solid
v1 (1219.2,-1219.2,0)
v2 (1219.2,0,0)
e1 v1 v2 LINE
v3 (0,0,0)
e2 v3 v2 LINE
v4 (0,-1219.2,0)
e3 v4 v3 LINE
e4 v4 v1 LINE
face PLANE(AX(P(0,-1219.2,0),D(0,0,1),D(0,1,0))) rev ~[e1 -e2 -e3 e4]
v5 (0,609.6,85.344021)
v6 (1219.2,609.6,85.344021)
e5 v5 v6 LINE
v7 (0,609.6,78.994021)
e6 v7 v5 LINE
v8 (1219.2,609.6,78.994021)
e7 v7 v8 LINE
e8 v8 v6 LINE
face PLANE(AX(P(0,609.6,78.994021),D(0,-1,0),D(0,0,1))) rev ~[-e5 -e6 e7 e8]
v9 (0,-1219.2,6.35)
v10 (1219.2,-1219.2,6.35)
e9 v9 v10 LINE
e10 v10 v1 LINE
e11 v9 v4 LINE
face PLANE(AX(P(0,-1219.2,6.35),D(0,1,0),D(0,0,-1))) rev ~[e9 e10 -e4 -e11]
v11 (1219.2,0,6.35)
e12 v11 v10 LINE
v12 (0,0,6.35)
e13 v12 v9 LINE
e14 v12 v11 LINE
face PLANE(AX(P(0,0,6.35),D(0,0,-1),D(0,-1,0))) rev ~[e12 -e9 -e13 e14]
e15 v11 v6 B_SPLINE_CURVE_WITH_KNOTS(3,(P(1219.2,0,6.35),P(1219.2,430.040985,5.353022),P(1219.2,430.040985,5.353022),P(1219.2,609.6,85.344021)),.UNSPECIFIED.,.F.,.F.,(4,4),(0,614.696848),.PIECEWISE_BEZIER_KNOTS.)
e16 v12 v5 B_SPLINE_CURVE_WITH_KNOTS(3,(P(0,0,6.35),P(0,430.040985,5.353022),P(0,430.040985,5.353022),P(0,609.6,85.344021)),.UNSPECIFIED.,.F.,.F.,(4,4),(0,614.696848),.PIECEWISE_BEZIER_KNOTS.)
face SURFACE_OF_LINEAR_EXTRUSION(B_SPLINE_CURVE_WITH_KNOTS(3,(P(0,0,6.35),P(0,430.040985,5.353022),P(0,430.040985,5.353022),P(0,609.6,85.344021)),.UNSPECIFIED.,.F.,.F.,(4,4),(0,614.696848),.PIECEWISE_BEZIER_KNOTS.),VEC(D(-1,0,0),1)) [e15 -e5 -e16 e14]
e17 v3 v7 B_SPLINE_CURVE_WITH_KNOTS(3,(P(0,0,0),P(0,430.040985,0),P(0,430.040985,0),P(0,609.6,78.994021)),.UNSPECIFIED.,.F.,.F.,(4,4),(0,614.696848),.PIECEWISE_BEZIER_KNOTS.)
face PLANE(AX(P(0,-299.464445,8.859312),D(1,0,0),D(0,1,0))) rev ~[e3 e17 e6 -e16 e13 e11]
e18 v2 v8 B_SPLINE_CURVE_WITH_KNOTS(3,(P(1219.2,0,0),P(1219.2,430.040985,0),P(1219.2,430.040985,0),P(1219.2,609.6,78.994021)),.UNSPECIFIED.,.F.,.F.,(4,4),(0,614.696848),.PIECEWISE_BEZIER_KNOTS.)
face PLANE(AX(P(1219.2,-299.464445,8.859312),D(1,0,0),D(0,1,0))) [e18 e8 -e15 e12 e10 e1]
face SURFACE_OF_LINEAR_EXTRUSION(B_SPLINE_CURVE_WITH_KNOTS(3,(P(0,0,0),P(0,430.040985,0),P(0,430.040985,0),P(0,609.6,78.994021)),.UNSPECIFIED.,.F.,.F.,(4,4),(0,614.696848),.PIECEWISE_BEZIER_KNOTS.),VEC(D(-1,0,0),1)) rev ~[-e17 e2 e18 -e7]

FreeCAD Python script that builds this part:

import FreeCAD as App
import Part
import Sketcher
from FreeCAD import Vector
Q = App.Units.Quantity

doc = App.newDocument("Part")
params = doc.addObject("Spreadsheet::Sheet", "Params")
for row, (alias, value) in enumerate([
    ("sketch1_width", "48 in"),
    ("pad1_length", "48 in"),
], start=1):
    params.set(f"A{row}", alias)
    params.set(f"B{row}", "=" + value)
    params.setAlias(f"B{row}", alias)

body = doc.addObject("PartDesign::Body", "Body")

# Sketch on YZ plane
sketch1 = doc.addObject("Sketcher::SketchObject", "Sketch")
body.addObject(sketch1)
sketch1.AttachmentSupport = (doc.YZ_Plane, [""])
sketch1.MapMode = "FlatFace"
sketch1.addGeometry([
    Part.LineSegment(Vector(-1219.2, 6.35, 0), Vector(-1219.2, 0, 0)),  # 0
    Part.LineSegment(Vector(-1219.2, 0, 0), Vector(0, 0, 0)),  # 1
    Part.BSplineCurve([Vector(0, 0, 0), Vector(430.040985, 0, 0), Vector(430.040985, 0, 0), Vector(609.6, 78.994021, 0)], [4, 4], [0, 614.696848], False, 3, [1, 1, 1, 1], False),  # 2
    Part.LineSegment(Vector(609.6, 78.994021, 0), Vector(609.6, 85.344021, 0)),  # 3
    Part.BSplineCurve([Vector(0, 6.35, 0), Vector(430.040985, 5.353022, 0), Vector(430.040985, 5.353022, 0), Vector(609.6, 85.344021, 0)], [4, 4], [0, 614.696848], False, 3, [1, 1, 1, 1], False),  # 4
    Part.LineSegment(Vector(0, 6.35, 0), Vector(-1219.2, 6.35, 0)),  # 5
], False)
sketch1.addConstraint([
    Sketcher.Constraint("Block", 2),
    Sketcher.Constraint("Block", 4),
    Sketcher.Constraint("Coincident", 0, 2, 1, 1),
    Sketcher.Constraint("Coincident", 1, 2, 2, 1),
    Sketcher.Constraint("Coincident", 2, 2, 3, 1),
    Sketcher.Constraint("Coincident", 3, 2, 4, 2),
    Sketcher.Constraint("Coincident", 4, 1, 5, 1),
    Sketcher.Constraint("Coincident", 5, 2, 0, 1),
    Sketcher.Constraint("Vertical", 0),
    Sketcher.Constraint("Horizontal", 1),
    Sketcher.Constraint("Horizontal", 5),
    Sketcher.Constraint("DistanceX", 1, 1, 1, 2, Q("48 in")),
])
sketch1.setExpression("Constraints[11]", "Params.sketch1_width")
pad1 = doc.addObject("PartDesign::Pad", "Pad")
body.addObject(pad1)
pad1.Profile = sketch1
pad1.setExpression("Length", "Params.pad1_length")

doc.recompute()
